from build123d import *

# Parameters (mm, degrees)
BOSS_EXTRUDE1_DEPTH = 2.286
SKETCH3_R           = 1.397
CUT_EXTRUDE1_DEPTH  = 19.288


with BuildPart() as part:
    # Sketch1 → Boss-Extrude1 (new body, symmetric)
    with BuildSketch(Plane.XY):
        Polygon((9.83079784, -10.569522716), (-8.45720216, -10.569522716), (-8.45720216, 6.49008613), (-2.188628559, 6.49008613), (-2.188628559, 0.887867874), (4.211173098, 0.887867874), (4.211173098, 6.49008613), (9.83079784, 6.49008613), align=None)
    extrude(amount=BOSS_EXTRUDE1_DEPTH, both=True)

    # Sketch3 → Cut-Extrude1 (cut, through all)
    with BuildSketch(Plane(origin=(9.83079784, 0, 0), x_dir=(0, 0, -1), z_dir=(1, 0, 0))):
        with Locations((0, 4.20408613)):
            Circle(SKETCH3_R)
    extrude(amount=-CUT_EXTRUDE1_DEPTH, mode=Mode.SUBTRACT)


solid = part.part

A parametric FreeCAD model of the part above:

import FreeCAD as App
import Part
import Sketcher
Q = App.Units.Quantity


def add_polygon(sketch, points):
    """Adds a closed chain of lines whose ends are joined by coincident constraints."""
    first, n = sketch.GeometryCount, len(points)
    for a, b in zip(points, points[1:] + points[:1]):
        sketch.addGeometry(Part.LineSegment(App.Vector(*a, 0), App.Vector(*b, 0)), False)
    for i in range(n):
        sketch.addConstraint(Sketcher.Constraint("Coincident", first + i, 2, first + (i + 1) % n, 1))

doc = App.newDocument("Part")
params = doc.addObject("Spreadsheet::Sheet", "Params")
for row, (alias, value) in enumerate([
    ("sketch1_width", "0.72 in"),
    ("pad1_length", "0.18 in"),
    ("sketch2_diameter", "0.11 in"),
], start=1):
    params.set(f"A{row}", alias)
    params.set(f"B{row}", "=" + value)
    params.setAlias(f"B{row}", alias)

body = doc.addObject("PartDesign::Body", "Body")

# Sketch on XY plane
sketch1 = body.newObject("Sketcher::SketchObject", "Sketch")
sketch1.AttachmentSupport = (doc.getObject("XY_Plane"), [""])
sketch1.MapMode = "FlatFace"
add_polygon(sketch1, [(-8.457202, -10.569523), (9.830798, -10.569523), (9.830798, 6.490086), (4.211173, 6.490086), (4.211173, 0.887868), (-2.188629, 0.887868), (-2.188629, 6.490086), (-8.457202, 6.490086)])  # lines 0-7
sketch1.addConstraint(Sketcher.Constraint("Horizontal", 0))
sketch1.addConstraint(Sketcher.Constraint("Vertical", 1))
sketch1.addConstraint(Sketcher.Constraint("Horizontal", 2))
sketch1.addConstraint(Sketcher.Constraint("Vertical", 3))
sketch1.addConstraint(Sketcher.Constraint("Horizontal", 4))
sketch1.addConstraint(Sketcher.Constraint("Vertical", 5))
sketch1.addConstraint(Sketcher.Constraint("Horizontal", 6))
sketch1.addConstraint(Sketcher.Constraint("Vertical", 7))
sketch1.addConstraint(Sketcher.Constraint("Horizontal", 2, 2, 5, 2))
sketch1.addConstraint(Sketcher.Constraint("DistanceX", 0, 1, 0, 2, Q("0.72 in")))
sketch1.addConstraint(Sketcher.Constraint("DistanceX", 4, 2, 4, 1, Q("6.399802 mm")))
sketch1.addConstraint(Sketcher.Constraint("DistanceY", 1, 1, 1, 2, Q("17.059609 mm")))
sketch1.addConstraint(Sketcher.Constraint("DistanceY", 3, 2, 3, 1, Q("5.602218 mm")))
sketch1.addConstraint(Sketcher.Constraint("DistanceX", 2, 2, 2, 1, Q("5.619625 mm")))
sketch1.addConstraint(Sketcher.Constraint("DistanceX", 4, 2, -1, 1, Q("2.188629 mm")))
sketch1.addConstraint(Sketcher.Constraint("DistanceY", 0, 2, -1, 1, Q("10.569523 mm")))
sketch1.setExpression("Constraints[17]", "Params.sketch1_width")
pad1 = body.newObject("PartDesign::Pad", "Pad")
pad1.Profile = sketch1
pad1.setExpression("Length", "Params.pad1_length")
pad1.Midplane = True

# Sketch on YZ plane
sketch2 = body.newObject("Sketcher::SketchObject", "Sketch001")
sketch2.AttachmentSupport = (doc.getObject("YZ_Plane"), [""])
sketch2.MapMode = "FlatFace"
sketch2.AttachmentOffset = App.Placement(App.Vector(0, 0, 9.830798), App.Rotation())
sketch2.addGeometry(Part.Circle(App.Vector(4.204086, 0, 0), App.Vector(0, 0, 1), 1.397), False)
sketch2.addConstraint(Sketcher.Constraint("PointOnObject", 0, 3, -1))
sketch2.addConstraint(Sketcher.Constraint("Diameter", 0, Q("0.11 in")))
sketch2.addConstraint(Sketcher.Constraint("DistanceX", -1, 1, 0, 3, Q("4.204086 mm")))
sketch2.setExpression("Constraints[1]", "Params.sketch2_diameter")
pocket1 = body.newObject("PartDesign::Pocket", "Pocket")
pocket1.Profile = sketch2
pocket1.Type = "ThroughAll"

doc.recompute()
